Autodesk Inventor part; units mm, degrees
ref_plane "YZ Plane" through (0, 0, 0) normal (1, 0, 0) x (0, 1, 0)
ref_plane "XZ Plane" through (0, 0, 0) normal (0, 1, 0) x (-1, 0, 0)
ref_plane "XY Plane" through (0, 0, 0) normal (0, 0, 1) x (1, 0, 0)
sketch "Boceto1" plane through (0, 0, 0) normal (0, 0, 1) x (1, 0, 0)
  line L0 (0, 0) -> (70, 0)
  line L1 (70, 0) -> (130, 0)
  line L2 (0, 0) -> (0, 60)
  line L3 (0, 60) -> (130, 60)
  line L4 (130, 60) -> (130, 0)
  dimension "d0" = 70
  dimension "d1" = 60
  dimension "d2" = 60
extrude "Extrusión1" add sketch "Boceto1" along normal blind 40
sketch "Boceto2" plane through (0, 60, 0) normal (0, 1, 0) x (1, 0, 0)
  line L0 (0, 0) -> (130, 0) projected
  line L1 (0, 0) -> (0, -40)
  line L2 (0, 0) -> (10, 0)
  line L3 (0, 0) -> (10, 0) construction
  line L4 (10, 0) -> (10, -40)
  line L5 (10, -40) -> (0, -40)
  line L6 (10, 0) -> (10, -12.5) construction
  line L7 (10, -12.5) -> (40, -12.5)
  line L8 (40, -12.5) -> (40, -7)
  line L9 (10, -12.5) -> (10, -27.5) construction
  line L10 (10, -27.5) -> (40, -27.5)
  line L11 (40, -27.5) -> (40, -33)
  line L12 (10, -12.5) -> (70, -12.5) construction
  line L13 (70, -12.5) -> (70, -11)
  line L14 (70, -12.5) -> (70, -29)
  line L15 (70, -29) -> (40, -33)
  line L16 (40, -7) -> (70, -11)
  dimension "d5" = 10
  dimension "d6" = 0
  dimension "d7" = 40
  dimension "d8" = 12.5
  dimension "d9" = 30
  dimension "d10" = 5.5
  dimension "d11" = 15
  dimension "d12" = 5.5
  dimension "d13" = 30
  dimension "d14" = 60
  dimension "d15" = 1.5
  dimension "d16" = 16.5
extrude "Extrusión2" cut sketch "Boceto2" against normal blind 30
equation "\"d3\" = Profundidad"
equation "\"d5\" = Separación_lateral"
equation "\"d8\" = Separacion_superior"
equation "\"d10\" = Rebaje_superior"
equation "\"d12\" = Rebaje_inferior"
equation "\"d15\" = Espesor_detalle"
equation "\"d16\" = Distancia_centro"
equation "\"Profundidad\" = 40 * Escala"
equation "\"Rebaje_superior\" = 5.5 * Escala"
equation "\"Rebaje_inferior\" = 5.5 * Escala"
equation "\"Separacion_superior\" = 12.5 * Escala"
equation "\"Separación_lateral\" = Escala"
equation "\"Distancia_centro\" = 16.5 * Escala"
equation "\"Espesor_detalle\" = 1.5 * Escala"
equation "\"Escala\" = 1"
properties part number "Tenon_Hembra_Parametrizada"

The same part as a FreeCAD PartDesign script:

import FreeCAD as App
import Part
import Sketcher

V = App.Vector
Q = App.Units.Quantity


def add_polygon(sketch, points):
    """Adds a closed chain of lines whose ends are joined by coincident constraints."""
    first, n = sketch.GeometryCount, len(points)
    for a, b in zip(points, points[1:] + points[:1]):
        sketch.addGeometry(Part.LineSegment(App.Vector(*a, 0), App.Vector(*b, 0)), False)
    for i in range(n):
        sketch.addConstraint(Sketcher.Constraint("Coincident", first + i, 2, first + (i + 1) % n, 1))

doc = App.newDocument("Part")
params = doc.addObject("Spreadsheet::Sheet", "Params")
for row, (alias, value) in enumerate([
    ("sketch1_height", "60 mm"),
    ("sketch1_width", "130 mm"),
    ("pad1_length", "40 mm"),
    ("sketch2_width", "10 mm"),
    ("sketch2_width2", "30 mm"),
    ("sketch2_height", "40 mm"),
    ("sketch2_height2", "12.5 mm"),
    ("sketch2_height3", "5.5 mm"),
    ("pocket1_length", "30 mm"),
], start=1):
    params.set(f"A{row}", alias)
    params.set(f"B{row}", "=" + value)
    params.setAlias(f"B{row}", alias)

body = doc.addObject("PartDesign::Body", "Body")

# Sketch on XY plane
sketch1 = body.newObject("Sketcher::SketchObject", "Sketch")
sketch1.AttachmentSupport = (doc.getObject("XY_Plane"), [""])
sketch1.MapMode = "FlatFace"
add_polygon(sketch1, [(0, 60), (0, 0), (130, 0), (130, 60)])  # lines 0-3
sketch1.addConstraint(Sketcher.Constraint("Vertical", 0))
sketch1.addConstraint(Sketcher.Constraint("Horizontal", 1))
sketch1.addConstraint(Sketcher.Constraint("Vertical", 2))
sketch1.addConstraint(Sketcher.Constraint("Horizontal", 3))
sketch1.addConstraint(Sketcher.Constraint("Coincident", 0, 2, -1, 1))
sketch1.addConstraint(Sketcher.Constraint("DistanceY", 0, 2, 0, 1, Q("60 mm")))
sketch1.addConstraint(Sketcher.Constraint("DistanceX", 1, 1, 1, 2, Q("130 mm")))
sketch1.setExpression("Constraints[9]", "Params.sketch1_height")
sketch1.setExpression("Constraints[10]", "Params.sketch1_width")
pad1 = body.newObject("PartDesign::Pad", "Pad")
pad1.Profile = sketch1
pad1.setExpression("Length", "Params.pad1_length")

# Sketch on XZ plane
sketch2 = body.newObject("Sketcher::SketchObject", "Sketch001")
sketch2.AttachmentSupport = (doc.getObject("XZ_Plane"), [""])
sketch2.MapMode = "FlatFace"
sketch2.AttachmentOffset = App.Placement(V(0, 0, -60), App.Rotation())
add_polygon(sketch2, [(10, 0), (0, 0), (0, 40), (10, 40), (10, 27.5), (40, 27.5), (40, 33), (70, 29), (70, 11), (40, 7), (40, 12.5), (10, 12.5)])  # lines 0-11
sketch2.addConstraint(Sketcher.Constraint("Horizontal", 0))
sketch2.addConstraint(Sketcher.Constraint("Vertical", 1))
sketch2.addConstraint(Sketcher.Constraint("Horizontal", 2))
sketch2.addConstraint(Sketcher.Constraint("Vertical", 3))
sketch2.addConstraint(Sketcher.Constraint("Horizontal", 4))
sketch2.addConstraint(Sketcher.Constraint("Vertical", 5))
sketch2.addConstraint(Sketcher.Constraint("Vertical", 7))
sketch2.addConstraint(Sketcher.Constraint("Vertical", 9))
sketch2.addConstraint(Sketcher.Constraint("Horizontal", 10))
sketch2.addConstraint(Sketcher.Constraint("Vertical", 11))
sketch2.addConstraint(Sketcher.Constraint("Coincident", 0, 2, -1, 1))
sketch2.addConstraint(Sketcher.Constraint("Vertical", 5, 2, 8, 2))
sketch2.addConstraint(Sketcher.Constraint("Vertical", 3, 2, 10, 2))
sketch2.addConstraint(Sketcher.Constraint("Equal", 5, 9))
sketch2.addConstraint(Sketcher.Constraint("Equal", 3, 11))
sketch2.addConstraint(Sketcher.Constraint("Equal", 6, 8))
sketch2.addConstraint(Sketcher.Constraint("DistanceX", 0, 2, 0, 1, Q("10 mm")))
sketch2.addConstraint(Sketcher.Constraint("DistanceX", 4, 1, 4, 2, Q("30 mm")))
sketch2.addConstraint(Sketcher.Constraint("DistanceY", 1, 1, 1, 2, Q("40 mm")))
sketch2.addConstraint(Sketcher.Constraint("DistanceY", 3, 2, 3, 1, Q("12.5 mm")))
sketch2.addConstraint(Sketcher.Constraint("DistanceY", 5, 1, 5, 2, Q("5.5 mm")))
sketch2.addConstraint(Sketcher.Constraint("DistanceX", 4, 2, 6, 2, Q("30 mm")))
sketch2.addConstraint(Sketcher.Constraint("DistanceY", 4, 2, 6, 2, Q("1.5 mm")))
sketch2.setExpression("Constraints[28]", "Params.sketch2_width")
sketch2.setExpression("Constraints[29]", "Params.sketch2_width2")
sketch2.setExpression("Constraints[30]", "Params.sketch2_height")
sketch2.setExpression("Constraints[31]", "Params.sketch2_height2")
sketch2.setExpression("Constraints[32]", "Params.sketch2_height3")
pocket1 = body.newObject("PartDesign::Pocket", "Pocket")
pocket1.Profile = sketch2
pocket1.setExpression("Length", "Params.pocket1_length")
pocket1.Reversed = True

doc.recompute()
